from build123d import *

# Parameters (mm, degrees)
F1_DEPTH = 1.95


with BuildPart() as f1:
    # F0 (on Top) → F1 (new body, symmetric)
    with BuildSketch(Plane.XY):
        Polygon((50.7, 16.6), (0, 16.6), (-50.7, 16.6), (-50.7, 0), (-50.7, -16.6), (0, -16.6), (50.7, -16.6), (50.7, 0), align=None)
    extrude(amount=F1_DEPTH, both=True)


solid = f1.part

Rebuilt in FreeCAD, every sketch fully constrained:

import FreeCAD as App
import Part
import Sketcher
from FreeCAD import Vector


def add_polygon(sketch, points):
    """Adds a closed chain of lines whose ends are joined by coincident constraints."""
    first, n = sketch.GeometryCount, len(points)
    for a, b in zip(points, points[1:] + points[:1]):
        sketch.addGeometry(Part.LineSegment(App.Vector(*a, 0), App.Vector(*b, 0)), False)
    for i in range(n):
        sketch.addConstraint(Sketcher.Constraint("Coincident", first + i, 2, first + (i + 1) % n, 1))

doc = App.newDocument("Part")
body = doc.addObject("PartDesign::Body", "Body")

sketch1 = body.newObject("Sketcher::SketchObject", "Sketch")
sketch1.AttachmentSupport = (doc.getObject("XY_Plane"), [""])
sketch1.MapMode = "FlatFace"
add_polygon(sketch1, [(51, 17), (-51, 17), (-51, -17), (51, -17)])
sketch1.addConstraint(Sketcher.Constraint("Horizontal", 0))
sketch1.addConstraint(Sketcher.Constraint("Vertical", 1))
sketch1.addConstraint(Sketcher.Constraint("Horizontal", 2))
sketch1.addConstraint(Sketcher.Constraint("Vertical", 3))
sketch1.addConstraint(Sketcher.Constraint("Symmetric", 0, 2, 2, 2, -1, 1))
sketch1.addConstraint(Sketcher.Constraint("DistanceX", 0, 2, 0, 1, 101.4))
sketch1.addConstraint(Sketcher.Constraint("DistanceY", 1, 2, 1, 1, 33.2))
pad1 = body.newObject("PartDesign::Pad", "Pad")
pad1.Profile = sketch1
pad1.Length = 3.9
pad1.Midplane = True

doc.recompute()
